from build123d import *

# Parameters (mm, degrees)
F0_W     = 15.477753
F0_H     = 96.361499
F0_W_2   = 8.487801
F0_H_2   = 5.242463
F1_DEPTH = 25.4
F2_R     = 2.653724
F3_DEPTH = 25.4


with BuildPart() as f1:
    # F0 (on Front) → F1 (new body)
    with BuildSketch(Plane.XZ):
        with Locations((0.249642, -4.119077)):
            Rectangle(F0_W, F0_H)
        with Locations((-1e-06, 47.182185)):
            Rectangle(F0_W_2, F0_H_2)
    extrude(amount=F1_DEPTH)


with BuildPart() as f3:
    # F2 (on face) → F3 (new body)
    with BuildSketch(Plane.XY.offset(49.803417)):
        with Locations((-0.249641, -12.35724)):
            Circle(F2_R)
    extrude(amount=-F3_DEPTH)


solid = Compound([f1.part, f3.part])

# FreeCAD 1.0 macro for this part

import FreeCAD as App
import Part
import Sketcher
Q = App.Units.Quantity

doc = App.newDocument("Part")
body = doc.addObject("PartDesign::Body", "Body")
body.AllowCompound = True

# Sketch on XZ plane
sketch1 = body.newObject("Sketcher::SketchObject", "Sketch")
sketch1.AttachmentSupport = (doc.getObject("XZ_Plane"), [""])
sketch1.MapMode = "FlatFace"
sketch1.addGeometry([
    Part.LineSegment(App.Vector(-7, 44, 0), App.Vector(-7, -52, 0)),  # 0
    Part.LineSegment(App.Vector(-7, -52, 0), App.Vector(8, -52, 0)),  # 1
    Part.LineSegment(App.Vector(8, -52, 0), App.Vector(8, 44, 0)),  # 2
    Part.LineSegment(App.Vector(8, 44, 0), App.Vector(-7, 44, 0)),  # 3
    Part.LineSegment(App.Vector(-4, 50, 0), App.Vector(-4, 45, 0)),  # 4
    Part.LineSegment(App.Vector(-4, 45, 0), App.Vector(4, 45, 0)),  # 5
    Part.LineSegment(App.Vector(4, 45, 0), App.Vector(4, 50, 0)),  # 6
    Part.LineSegment(App.Vector(4, 50, 0), App.Vector(-4, 50, 0)),  # 7
], False)
sketch1.addConstraint([
    Sketcher.Constraint("Coincident", 0, 2, 1, 1),
    Sketcher.Constraint("Coincident", 1, 2, 2, 1),
    Sketcher.Constraint("Coincident", 2, 2, 3, 1),
    Sketcher.Constraint("Coincident", 3, 2, 0, 1),
    Sketcher.Constraint("Coincident", 4, 2, 5, 1),
    Sketcher.Constraint("Coincident", 5, 2, 6, 1),
    Sketcher.Constraint("Coincident", 6, 2, 7, 1),
    Sketcher.Constraint("Coincident", 7, 2, 4, 1),
    Sketcher.Constraint("Vertical", 0),
    Sketcher.Constraint("Horizontal", 1),
    Sketcher.Constraint("Vertical", 2),
    Sketcher.Constraint("Horizontal", 3),
    Sketcher.Constraint("Vertical", 4),
    Sketcher.Constraint("Horizontal", 5),
    Sketcher.Constraint("Vertical", 6),
    Sketcher.Constraint("Horizontal", 7),
    Sketcher.Constraint("DistanceX", 5, 1, 5, 2, 8.487801),
    Sketcher.Constraint("DistanceY", 0, 2, 0, 1, 96.361499),
    Sketcher.Constraint("DistanceX", 4, 2, -1, 1, 4.243901),
    Sketcher.Constraint("DistanceX", 1, 1, 1, 2, 15.477753),
    Sketcher.Constraint("DistanceY", 4, 2, 4, 1, 5.242463),
    Sketcher.Constraint("DistanceX", -1, 1, 1, 2, 7.988518),
    Sketcher.Constraint("DistanceY", 3, 2, 4, 2, 0.499281),
    Sketcher.Constraint("DistanceY", 0, 2, -1, 1, 52.299827),
])
pad1 = body.newObject("PartDesign::Pad", "Pad")
pad1.Profile = sketch1
pad1.Length = Q("1 in")
body2 = doc.addObject("PartDesign::Body", "Body001")

# Sketch on XY plane
sketch2 = body2.newObject("Sketcher::SketchObject", "Sketch001")
sketch2.AttachmentSupport = (doc.getObject("XY_Plane001"), [""])
sketch2.MapMode = "FlatFace"
sketch2.AttachmentOffset = App.Placement(App.Vector(0, 0, 49.803417), App.Rotation())
sketch2.addGeometry(Part.Circle(App.Vector(-0.2, -12.4, 0), App.Vector(0, 0, 1), 2.7), False)
sketch2.addConstraint([
    Sketcher.Constraint("Diameter", 0, 5.307448),
    Sketcher.Constraint("DistanceX", 0, 3, -1, 1, 0.249641),
    Sketcher.Constraint("DistanceY", 0, 3, -1, 1, 12.35724),
])
pad2 = body2.newObject("PartDesign::Pad", "Pad001")
pad2.Profile = sketch2
pad2.Length = Q("1 in")
pad2.Reversed = True

doc.recompute()
